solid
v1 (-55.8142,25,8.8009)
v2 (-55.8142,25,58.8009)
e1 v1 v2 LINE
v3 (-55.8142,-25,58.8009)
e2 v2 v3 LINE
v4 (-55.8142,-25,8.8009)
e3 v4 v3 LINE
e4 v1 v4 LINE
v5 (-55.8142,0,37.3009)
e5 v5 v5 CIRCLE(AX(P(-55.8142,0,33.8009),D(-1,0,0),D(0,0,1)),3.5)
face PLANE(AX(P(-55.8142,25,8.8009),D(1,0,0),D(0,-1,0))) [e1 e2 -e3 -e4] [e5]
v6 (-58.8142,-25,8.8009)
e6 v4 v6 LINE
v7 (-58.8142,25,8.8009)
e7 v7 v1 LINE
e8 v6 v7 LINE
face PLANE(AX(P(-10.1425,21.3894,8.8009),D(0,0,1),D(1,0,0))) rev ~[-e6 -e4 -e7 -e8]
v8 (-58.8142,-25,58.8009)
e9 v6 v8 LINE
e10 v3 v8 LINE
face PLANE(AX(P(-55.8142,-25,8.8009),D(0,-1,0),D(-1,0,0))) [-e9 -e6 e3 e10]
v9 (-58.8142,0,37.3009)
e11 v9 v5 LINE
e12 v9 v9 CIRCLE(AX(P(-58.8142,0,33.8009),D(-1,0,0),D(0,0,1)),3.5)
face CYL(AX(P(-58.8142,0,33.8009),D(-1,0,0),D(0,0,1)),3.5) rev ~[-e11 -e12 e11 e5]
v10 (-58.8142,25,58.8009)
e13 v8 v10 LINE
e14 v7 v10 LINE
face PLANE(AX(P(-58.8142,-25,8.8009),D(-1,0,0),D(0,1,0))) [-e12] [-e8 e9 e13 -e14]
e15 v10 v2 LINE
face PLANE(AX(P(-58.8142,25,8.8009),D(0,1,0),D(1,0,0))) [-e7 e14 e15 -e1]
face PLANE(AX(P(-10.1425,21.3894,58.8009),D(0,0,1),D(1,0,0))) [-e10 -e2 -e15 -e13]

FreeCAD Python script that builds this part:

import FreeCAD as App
import Part
import Sketcher
Q = App.Units.Quantity


def add_polygon(sketch, points):
    """Adds a closed chain of lines whose ends are joined by coincident constraints."""
    first, n = sketch.GeometryCount, len(points)
    for a, b in zip(points, points[1:] + points[:1]):
        sketch.addGeometry(Part.LineSegment(App.Vector(*a, 0), App.Vector(*b, 0)), False)
    for i in range(n):
        sketch.addConstraint(Sketcher.Constraint("Coincident", first + i, 2, first + (i + 1) % n, 1))

doc = App.newDocument("Part")
params = doc.addObject("Spreadsheet::Sheet", "Params")
for row, (alias, value) in enumerate([
    ("sketch1_width", "3 mm"),
    ("sketch1_height", "50 mm"),
    ("pad1_length", "50 mm"),
    ("sketch2_diameter", "7 mm"),
], start=1):
    params.set(f"A{row}", alias)
    params.set(f"B{row}", "=" + value)
    params.setAlias(f"B{row}", alias)

body = doc.addObject("PartDesign::Body", "Body")

# Sketch on XY plane
sketch1 = doc.addObject("Sketcher::SketchObject", "Sketch")
body.addObject(sketch1)
sketch1.AttachmentSupport = (doc.XY_Plane, [""])
sketch1.MapMode = "FlatFace"
sketch1.AttachmentOffset = App.Placement(App.Vector(0, 0, 8.8009), App.Rotation())
add_polygon(sketch1, [(-55.8, 25), (-58.8, 25), (-58.8, -25), (-55.8, -25)])  # lines 0-3
sketch1.addConstraint(Sketcher.Constraint("Horizontal", 0))
sketch1.addConstraint(Sketcher.Constraint("Vertical", 1))
sketch1.addConstraint(Sketcher.Constraint("Horizontal", 2))
sketch1.addConstraint(Sketcher.Constraint("Vertical", 3))
sketch1.addConstraint(Sketcher.Constraint("DistanceX", 0, 2, 0, 1, Q("3 mm")))
sketch1.addConstraint(Sketcher.Constraint("DistanceY", 1, 2, 1, 1, Q("50 mm")))
sketch1.addConstraint(Sketcher.Constraint("DistanceY", -1, 1, 0, 2, Q("25 mm")))
sketch1.addConstraint(Sketcher.Constraint("DistanceX", 0, 2, -1, 1, Q("58.8142 mm")))
sketch1.setExpression("Constraints[8]", "Params.sketch1_width")
sketch1.setExpression("Constraints[9]", "Params.sketch1_height")
pad1 = doc.addObject("PartDesign::Pad", "Pad")
body.addObject(pad1)
pad1.Profile = sketch1
pad1.setExpression("Length", "Params.pad1_length")

# Sketch on YZ plane
sketch2 = doc.addObject("Sketcher::SketchObject", "Sketch001")
body.addObject(sketch2)
sketch2.AttachmentSupport = (doc.YZ_Plane, [""])
sketch2.MapMode = "FlatFace"
sketch2.AttachmentOffset = App.Placement(App.Vector(0, 0, -58.8142), App.Rotation())
sketch2.addGeometry(Part.Circle(App.Vector(0, 33.8, 0), App.Vector(0, 0, 1), 3.5), False)
sketch2.addConstraint(Sketcher.Constraint("PointOnObject", 0, 3, -2))
sketch2.addConstraint(Sketcher.Constraint("Diameter", 0, Q("7 mm")))
sketch2.addConstraint(Sketcher.Constraint("DistanceY", -1, 1, 0, 3, Q("33.801 mm")))
sketch2.setExpression("Constraints[1]", "Params.sketch2_diameter")
pocket1 = doc.addObject("PartDesign::Pocket", "Pocket")
body.addObject(pocket1)
pocket1.Profile = sketch2
pocket1.Type = "ThroughAll"
pocket1.Reversed = True

doc.recompute()
